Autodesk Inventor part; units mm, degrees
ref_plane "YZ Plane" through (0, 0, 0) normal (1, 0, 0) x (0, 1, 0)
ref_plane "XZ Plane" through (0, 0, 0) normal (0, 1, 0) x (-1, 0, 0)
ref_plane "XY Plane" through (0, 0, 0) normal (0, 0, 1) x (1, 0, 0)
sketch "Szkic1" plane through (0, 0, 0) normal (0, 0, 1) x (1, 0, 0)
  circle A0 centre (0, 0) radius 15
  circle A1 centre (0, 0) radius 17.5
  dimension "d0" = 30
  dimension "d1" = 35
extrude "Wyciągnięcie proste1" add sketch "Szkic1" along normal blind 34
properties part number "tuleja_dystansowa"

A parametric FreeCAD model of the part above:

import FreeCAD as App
import Part
import Sketcher

V = App.Vector

doc = App.newDocument("Part")
body = doc.addObject("PartDesign::Body", "Body")

sketch1 = body.newObject("Sketcher::SketchObject", "Sketch")
sketch1.AttachmentSupport = (doc.getObject("XY_Plane"), [""])
sketch1.MapMode = "FlatFace"
sketch1.addGeometry([
    Part.Circle(V(0, 0, 0), V(0, 0, 1), 18),
    Part.Circle(V(0, 0, 0), V(0, 0, 1), 15),
], False)
sketch1.addConstraint([
    Sketcher.Constraint("Coincident", 0, 3, -1, 1),
    Sketcher.Constraint("Coincident", 1, 3, -1, 1),
    Sketcher.Constraint("Diameter", 0, 35.0),
    Sketcher.Constraint("Diameter", 1, 30.0),
])
pad1 = body.newObject("PartDesign::Pad", "Pad")
pad1.Profile = sketch1
pad1.Length = 34

doc.recompute()
